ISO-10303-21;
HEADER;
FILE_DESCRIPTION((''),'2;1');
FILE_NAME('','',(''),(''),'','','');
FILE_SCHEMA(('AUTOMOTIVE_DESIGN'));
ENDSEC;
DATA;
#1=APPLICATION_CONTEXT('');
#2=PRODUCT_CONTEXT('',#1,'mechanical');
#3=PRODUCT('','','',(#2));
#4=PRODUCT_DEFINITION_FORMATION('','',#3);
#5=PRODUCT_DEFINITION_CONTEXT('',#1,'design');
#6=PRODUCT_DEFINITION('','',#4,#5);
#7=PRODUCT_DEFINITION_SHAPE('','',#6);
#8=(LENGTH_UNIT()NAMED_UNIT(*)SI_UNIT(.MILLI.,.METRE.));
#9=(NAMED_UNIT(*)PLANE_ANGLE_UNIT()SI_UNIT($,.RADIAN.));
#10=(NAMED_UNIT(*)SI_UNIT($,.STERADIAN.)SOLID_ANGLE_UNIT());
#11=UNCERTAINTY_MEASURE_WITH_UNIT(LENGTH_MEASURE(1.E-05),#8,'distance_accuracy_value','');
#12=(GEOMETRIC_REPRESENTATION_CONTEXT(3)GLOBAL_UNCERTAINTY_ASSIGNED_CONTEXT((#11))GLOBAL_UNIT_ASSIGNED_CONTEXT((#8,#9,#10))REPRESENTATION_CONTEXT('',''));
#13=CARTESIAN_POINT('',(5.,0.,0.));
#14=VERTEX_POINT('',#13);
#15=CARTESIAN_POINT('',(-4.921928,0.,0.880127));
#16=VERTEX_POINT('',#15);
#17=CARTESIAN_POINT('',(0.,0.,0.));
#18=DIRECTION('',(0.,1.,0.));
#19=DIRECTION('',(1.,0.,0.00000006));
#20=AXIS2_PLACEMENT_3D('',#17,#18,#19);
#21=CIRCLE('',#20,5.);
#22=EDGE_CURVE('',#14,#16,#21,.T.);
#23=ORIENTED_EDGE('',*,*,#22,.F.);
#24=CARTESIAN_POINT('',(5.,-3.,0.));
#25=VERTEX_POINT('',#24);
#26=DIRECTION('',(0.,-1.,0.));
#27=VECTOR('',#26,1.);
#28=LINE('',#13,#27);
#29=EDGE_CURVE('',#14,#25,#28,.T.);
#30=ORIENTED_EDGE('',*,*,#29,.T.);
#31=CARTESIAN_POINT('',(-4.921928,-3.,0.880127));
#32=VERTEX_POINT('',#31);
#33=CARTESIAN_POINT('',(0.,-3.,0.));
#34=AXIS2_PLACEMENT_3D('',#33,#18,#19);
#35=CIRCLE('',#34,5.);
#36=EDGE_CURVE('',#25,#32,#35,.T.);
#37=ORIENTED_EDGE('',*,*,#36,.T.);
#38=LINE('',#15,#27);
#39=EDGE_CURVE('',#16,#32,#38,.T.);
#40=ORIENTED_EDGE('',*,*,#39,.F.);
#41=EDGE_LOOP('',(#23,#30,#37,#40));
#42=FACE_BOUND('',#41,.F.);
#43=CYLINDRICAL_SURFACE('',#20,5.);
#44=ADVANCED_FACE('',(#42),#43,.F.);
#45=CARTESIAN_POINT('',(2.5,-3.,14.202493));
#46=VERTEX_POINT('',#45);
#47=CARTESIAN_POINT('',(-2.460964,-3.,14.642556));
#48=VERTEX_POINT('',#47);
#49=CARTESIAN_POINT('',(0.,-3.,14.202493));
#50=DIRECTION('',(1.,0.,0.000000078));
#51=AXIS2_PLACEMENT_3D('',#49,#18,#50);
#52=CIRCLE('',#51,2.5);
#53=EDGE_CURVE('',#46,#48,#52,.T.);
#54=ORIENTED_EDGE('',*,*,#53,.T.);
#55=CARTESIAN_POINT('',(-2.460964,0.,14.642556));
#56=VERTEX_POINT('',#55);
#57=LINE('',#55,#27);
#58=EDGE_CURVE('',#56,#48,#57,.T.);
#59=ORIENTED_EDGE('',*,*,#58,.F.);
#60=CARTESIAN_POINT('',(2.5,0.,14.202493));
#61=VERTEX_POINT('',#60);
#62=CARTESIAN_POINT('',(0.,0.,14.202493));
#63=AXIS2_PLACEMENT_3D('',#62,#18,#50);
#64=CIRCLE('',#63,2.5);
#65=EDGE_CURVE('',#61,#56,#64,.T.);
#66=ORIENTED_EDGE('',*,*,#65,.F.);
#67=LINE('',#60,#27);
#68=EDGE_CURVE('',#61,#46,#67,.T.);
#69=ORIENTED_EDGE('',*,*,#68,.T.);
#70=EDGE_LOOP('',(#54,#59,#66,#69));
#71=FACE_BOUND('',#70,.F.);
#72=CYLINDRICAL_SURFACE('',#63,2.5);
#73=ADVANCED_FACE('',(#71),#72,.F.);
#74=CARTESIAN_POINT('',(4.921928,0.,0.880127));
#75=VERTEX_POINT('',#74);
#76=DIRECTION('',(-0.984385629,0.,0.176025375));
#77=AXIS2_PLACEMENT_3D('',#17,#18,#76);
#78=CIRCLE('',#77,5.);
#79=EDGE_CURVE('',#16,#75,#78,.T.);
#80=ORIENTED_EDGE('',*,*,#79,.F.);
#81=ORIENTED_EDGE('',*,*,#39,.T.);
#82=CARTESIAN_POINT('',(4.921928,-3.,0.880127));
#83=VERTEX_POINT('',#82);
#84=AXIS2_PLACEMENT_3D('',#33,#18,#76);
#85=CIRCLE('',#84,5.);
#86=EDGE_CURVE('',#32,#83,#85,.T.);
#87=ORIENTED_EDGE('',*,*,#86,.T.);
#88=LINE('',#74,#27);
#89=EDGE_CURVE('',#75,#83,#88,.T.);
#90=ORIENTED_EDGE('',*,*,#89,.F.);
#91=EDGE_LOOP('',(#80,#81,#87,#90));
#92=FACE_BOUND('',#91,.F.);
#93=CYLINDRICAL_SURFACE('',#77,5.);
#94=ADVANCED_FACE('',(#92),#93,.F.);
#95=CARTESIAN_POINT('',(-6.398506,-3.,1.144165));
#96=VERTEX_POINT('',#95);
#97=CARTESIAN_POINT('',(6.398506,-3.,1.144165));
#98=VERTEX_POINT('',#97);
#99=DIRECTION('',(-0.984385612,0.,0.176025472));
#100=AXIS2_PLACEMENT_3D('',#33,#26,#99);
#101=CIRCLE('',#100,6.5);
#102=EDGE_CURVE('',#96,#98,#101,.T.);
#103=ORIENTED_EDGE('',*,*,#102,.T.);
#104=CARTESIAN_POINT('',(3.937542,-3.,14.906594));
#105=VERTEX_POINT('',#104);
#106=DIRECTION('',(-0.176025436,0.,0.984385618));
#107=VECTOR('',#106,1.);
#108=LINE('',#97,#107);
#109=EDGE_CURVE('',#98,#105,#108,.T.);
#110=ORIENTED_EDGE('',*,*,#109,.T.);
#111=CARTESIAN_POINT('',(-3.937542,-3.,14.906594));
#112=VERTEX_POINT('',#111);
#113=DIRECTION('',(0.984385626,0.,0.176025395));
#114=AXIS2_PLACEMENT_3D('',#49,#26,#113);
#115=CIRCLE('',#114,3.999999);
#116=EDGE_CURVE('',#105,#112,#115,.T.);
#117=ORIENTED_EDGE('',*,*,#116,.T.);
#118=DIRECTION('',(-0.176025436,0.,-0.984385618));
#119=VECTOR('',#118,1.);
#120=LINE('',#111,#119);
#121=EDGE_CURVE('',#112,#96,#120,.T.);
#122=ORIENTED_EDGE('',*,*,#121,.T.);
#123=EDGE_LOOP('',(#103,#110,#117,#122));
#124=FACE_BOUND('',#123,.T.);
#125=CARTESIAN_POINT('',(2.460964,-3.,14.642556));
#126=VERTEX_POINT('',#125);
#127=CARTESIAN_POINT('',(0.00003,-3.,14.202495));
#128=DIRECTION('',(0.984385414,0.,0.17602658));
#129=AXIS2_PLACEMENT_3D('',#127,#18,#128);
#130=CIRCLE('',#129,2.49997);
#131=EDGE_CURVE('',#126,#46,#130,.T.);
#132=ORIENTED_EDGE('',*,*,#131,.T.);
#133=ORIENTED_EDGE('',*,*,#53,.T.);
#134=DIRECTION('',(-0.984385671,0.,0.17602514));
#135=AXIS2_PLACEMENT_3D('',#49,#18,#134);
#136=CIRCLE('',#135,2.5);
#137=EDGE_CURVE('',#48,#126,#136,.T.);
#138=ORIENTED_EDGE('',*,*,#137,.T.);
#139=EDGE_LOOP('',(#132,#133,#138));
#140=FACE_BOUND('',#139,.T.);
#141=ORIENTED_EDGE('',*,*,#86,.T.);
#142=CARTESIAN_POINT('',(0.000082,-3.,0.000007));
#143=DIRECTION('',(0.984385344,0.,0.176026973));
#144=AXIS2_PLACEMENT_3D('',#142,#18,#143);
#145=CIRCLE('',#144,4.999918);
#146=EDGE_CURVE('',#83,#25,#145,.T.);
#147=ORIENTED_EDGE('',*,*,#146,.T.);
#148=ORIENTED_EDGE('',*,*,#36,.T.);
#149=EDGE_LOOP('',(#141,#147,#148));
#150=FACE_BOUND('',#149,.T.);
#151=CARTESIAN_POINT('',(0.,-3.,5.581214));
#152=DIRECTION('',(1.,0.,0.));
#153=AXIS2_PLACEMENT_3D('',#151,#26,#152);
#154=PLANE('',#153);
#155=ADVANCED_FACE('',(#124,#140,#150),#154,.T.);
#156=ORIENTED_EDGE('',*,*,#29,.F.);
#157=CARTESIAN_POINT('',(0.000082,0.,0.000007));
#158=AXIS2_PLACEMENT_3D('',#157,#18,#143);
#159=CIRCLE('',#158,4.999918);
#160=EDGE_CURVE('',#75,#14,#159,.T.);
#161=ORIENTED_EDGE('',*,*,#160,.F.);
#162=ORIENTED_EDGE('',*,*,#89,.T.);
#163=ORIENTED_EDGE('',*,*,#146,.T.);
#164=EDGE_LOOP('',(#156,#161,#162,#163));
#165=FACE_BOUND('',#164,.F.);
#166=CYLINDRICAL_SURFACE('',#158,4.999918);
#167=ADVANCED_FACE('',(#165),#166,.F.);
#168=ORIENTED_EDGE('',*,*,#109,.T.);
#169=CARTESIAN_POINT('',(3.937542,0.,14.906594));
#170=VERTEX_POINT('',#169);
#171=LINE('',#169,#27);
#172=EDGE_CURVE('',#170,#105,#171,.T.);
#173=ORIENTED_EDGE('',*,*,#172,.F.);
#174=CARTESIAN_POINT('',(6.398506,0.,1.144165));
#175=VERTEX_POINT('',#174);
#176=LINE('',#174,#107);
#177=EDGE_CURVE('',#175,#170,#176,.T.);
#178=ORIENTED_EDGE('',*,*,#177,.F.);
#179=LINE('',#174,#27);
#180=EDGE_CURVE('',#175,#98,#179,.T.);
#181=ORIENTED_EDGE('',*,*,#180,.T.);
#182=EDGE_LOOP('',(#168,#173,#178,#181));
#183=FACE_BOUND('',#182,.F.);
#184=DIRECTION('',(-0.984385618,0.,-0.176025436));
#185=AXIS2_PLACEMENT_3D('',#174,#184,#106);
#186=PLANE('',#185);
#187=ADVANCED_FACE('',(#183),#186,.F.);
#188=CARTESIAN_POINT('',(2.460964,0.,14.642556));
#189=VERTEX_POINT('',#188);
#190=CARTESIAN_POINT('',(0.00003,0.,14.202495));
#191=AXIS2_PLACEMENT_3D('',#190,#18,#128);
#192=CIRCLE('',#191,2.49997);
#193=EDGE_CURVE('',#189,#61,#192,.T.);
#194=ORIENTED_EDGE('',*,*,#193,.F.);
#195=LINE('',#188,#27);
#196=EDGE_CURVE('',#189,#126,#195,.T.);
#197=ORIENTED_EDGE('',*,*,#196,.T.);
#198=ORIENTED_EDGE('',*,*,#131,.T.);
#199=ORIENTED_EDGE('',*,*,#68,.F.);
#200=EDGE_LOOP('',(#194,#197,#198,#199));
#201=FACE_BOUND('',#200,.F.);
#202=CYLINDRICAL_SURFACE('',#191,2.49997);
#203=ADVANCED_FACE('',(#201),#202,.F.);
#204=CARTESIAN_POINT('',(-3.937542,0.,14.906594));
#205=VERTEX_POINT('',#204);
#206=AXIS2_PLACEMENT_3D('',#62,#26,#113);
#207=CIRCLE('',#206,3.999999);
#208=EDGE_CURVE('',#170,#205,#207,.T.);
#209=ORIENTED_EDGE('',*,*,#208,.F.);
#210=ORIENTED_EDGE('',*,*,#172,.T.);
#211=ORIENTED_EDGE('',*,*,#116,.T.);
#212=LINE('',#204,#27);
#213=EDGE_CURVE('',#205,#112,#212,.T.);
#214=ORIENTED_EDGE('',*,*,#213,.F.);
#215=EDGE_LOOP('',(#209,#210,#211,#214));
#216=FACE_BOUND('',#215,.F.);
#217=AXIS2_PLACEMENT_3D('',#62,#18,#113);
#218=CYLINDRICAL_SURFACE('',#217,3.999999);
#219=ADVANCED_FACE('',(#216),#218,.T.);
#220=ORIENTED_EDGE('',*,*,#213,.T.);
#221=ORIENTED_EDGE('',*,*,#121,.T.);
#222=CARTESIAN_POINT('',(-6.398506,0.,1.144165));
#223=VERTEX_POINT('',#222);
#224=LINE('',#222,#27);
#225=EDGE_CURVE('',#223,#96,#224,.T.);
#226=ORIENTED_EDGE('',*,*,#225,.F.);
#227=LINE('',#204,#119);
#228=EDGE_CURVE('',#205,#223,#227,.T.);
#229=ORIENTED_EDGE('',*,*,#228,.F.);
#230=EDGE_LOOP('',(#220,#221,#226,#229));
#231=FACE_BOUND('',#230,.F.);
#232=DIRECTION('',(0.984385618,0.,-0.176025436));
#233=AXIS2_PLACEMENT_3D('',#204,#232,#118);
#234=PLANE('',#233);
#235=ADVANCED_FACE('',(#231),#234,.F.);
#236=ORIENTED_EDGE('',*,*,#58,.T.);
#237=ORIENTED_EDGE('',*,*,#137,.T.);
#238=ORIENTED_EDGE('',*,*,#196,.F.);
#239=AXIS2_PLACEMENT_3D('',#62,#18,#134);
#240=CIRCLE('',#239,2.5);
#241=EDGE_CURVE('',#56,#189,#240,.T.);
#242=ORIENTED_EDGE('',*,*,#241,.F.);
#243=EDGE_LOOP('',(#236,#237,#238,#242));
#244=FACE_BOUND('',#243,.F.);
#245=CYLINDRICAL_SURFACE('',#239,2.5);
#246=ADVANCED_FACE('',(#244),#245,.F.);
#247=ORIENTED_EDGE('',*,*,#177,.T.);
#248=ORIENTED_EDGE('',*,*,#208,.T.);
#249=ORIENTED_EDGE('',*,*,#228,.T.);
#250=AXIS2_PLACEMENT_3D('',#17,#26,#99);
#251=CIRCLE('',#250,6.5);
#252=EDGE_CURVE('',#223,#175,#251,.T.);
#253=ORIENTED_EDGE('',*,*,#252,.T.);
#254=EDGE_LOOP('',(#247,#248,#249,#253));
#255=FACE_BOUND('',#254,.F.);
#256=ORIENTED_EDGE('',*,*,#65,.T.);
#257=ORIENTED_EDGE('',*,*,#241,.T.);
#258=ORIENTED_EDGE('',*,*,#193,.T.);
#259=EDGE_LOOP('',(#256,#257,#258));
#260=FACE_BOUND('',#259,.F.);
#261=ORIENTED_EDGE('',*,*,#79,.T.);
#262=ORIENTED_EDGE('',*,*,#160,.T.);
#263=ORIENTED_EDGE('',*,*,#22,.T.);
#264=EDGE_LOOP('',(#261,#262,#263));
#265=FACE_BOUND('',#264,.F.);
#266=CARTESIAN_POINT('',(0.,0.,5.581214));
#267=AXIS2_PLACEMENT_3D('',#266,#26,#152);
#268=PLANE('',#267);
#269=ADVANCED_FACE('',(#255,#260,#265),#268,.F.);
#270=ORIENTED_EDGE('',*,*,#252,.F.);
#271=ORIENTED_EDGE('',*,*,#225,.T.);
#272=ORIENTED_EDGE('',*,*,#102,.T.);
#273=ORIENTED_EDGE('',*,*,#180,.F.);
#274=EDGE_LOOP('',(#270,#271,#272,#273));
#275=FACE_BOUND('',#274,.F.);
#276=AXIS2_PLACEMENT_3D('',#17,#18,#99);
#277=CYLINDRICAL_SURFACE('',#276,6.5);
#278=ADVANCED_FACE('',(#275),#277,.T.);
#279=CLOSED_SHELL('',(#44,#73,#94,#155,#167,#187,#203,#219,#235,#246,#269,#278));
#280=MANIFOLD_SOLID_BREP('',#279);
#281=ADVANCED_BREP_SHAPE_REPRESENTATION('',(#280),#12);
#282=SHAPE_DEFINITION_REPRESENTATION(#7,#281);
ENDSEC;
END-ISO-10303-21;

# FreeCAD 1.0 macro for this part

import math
import FreeCAD as App
import Part
import Sketcher
from FreeCAD import Vector
Q = App.Units.Quantity

doc = App.newDocument("Part")
body = doc.addObject("PartDesign::Body", "Body")

# Sketch on XZ plane
sketch1 = doc.addObject("Sketcher::SketchObject", "Sketch")
body.addObject(sketch1)
sketch1.AttachmentSupport = (doc.XZ_Plane, [""])
sketch1.MapMode = "FlatFace"
sketch1.addGeometry([
    Part.LineSegment(Vector(6.398506, 1.144165, 0), Vector(3.937542, 14.906594, 0)),  # 0
    Part.ArcOfCircle(Part.Circle(Vector(0, 14.202493, 0), Vector(0, 0, 1), 3.999999), math.radians(10.138335), math.radians(169.861665)),  # 1
    Part.LineSegment(Vector(-3.937542, 14.906594, 0), Vector(-6.398506, 1.144165, 0)),  # 2
    Part.ArcOfCircle(Part.Circle(Vector(0, 0, 0), Vector(0, 0, 1), 6.5), math.radians(169.86166), math.radians(370.13834)),  # 3
    Part.ArcOfCircle(Part.Circle(Vector(0, 0, 0), Vector(0, 0, 1), 5), math.radians(10.138334), math.radians(169.861666)),  # 4
    Part.ArcOfCircle(Part.Circle(Vector(0.000082, 0.000007, 0), Vector(0, 0, 1), 4.999918), math.radians(-0.000075), math.radians(10.138427)),  # 5
    Part.ArcOfCircle(Part.Circle(Vector(0, 0, 0), Vector(0, 0, 1), 5), math.radians(169.861661), math.radians(360.000003)),  # 6
    Part.ArcOfCircle(Part.Circle(Vector(0, 14.202493, 0), Vector(0, 0, 1), 2.5), math.radians(10.13832), math.radians(169.86168)),  # 7
    Part.ArcOfCircle(Part.Circle(Vector(0.00003, 14.202495, 0), Vector(0, 0, 1), 2.49997), math.radians(-0.000041), math.radians(10.138404)),  # 8
    Part.ArcOfCircle(Part.Circle(Vector(0, 14.202493, 0), Vector(0, 0, 1), 2.5), math.radians(169.861671), math.radians(360.000004)),  # 9
], False)
sketch1.addConstraint([
    Sketcher.Constraint("Coincident", 0, 2, 1, 1),
    Sketcher.Constraint("Coincident", 1, 2, 2, 1),
    Sketcher.Constraint("Coincident", 2, 2, 3, 1),
    Sketcher.Constraint("Coincident", 3, 2, 0, 1),
    Sketcher.Constraint("Coincident", 4, 1, 5, 2),
    Sketcher.Constraint("Coincident", 5, 1, 6, 2),
    Sketcher.Constraint("Coincident", 6, 1, 4, 2),
    Sketcher.Constraint("Coincident", 7, 1, 8, 2),
    Sketcher.Constraint("Coincident", 8, 1, 9, 2),
    Sketcher.Constraint("Coincident", 9, 1, 7, 2),
    Sketcher.Constraint("Coincident", 3, 3, -1, 1),
    Sketcher.Constraint("Coincident", 4, 3, -1, 1),
    Sketcher.Constraint("Coincident", 6, 3, -1, 1),
    Sketcher.Constraint("Coincident", 7, 3, 1, 3),
    Sketcher.Constraint("Coincident", 9, 3, 1, 3),
    Sketcher.Constraint("PointOnObject", 1, 3, -2),
    Sketcher.Constraint("PointOnObject", 5, 1, -1),
    Sketcher.Constraint("Radius", 1, Q("3.999999 mm")),
    Sketcher.Constraint("Radius", 4, Q("5 mm")),
    Sketcher.Constraint("Radius", 3, Q("6.5 mm")),
    Sketcher.Constraint("Radius", 7, Q("2.5 mm")),
    Sketcher.Constraint("Radius", 8, Q("2.49997 mm")),
    Sketcher.Constraint("Radius", 5, Q("4.999918 mm")),
    Sketcher.Constraint("DistanceY", 8, 3, 0, 2, Q("0.704099 mm")),
    Sketcher.Constraint("DistanceY", 7, 3, 1, 2, Q("0.704101 mm")),
    Sketcher.Constraint("DistanceY", 8, 1, 0, 2, Q("0.704101 mm")),
    Sketcher.Constraint("Distance", 0, Q("13.980729 mm")),
    Sketcher.Constraint("Distance", 2, Q("13.980729 mm")),
    Sketcher.Constraint("DistanceX", 6, 1, -1, 1, Q("4.921928 mm")),
    Sketcher.Constraint("DistanceY", 5, 3, 8, 3, Q("14.202488 mm")),
    Sketcher.Constraint("DistanceX", 4, 1, 3, 2, Q("1.476578 mm")),
    Sketcher.Constraint("DistanceY", 8, 3, 7, 1, Q("0.440061 mm")),
    Sketcher.Constraint("DistanceY", 8, 3, 9, 1, Q("0.440061 mm")),
])
pad1 = doc.addObject("PartDesign::Pad", "Pad")
body.addObject(pad1)
pad1.Profile = sketch1
pad1.Length = 3

doc.recompute()
